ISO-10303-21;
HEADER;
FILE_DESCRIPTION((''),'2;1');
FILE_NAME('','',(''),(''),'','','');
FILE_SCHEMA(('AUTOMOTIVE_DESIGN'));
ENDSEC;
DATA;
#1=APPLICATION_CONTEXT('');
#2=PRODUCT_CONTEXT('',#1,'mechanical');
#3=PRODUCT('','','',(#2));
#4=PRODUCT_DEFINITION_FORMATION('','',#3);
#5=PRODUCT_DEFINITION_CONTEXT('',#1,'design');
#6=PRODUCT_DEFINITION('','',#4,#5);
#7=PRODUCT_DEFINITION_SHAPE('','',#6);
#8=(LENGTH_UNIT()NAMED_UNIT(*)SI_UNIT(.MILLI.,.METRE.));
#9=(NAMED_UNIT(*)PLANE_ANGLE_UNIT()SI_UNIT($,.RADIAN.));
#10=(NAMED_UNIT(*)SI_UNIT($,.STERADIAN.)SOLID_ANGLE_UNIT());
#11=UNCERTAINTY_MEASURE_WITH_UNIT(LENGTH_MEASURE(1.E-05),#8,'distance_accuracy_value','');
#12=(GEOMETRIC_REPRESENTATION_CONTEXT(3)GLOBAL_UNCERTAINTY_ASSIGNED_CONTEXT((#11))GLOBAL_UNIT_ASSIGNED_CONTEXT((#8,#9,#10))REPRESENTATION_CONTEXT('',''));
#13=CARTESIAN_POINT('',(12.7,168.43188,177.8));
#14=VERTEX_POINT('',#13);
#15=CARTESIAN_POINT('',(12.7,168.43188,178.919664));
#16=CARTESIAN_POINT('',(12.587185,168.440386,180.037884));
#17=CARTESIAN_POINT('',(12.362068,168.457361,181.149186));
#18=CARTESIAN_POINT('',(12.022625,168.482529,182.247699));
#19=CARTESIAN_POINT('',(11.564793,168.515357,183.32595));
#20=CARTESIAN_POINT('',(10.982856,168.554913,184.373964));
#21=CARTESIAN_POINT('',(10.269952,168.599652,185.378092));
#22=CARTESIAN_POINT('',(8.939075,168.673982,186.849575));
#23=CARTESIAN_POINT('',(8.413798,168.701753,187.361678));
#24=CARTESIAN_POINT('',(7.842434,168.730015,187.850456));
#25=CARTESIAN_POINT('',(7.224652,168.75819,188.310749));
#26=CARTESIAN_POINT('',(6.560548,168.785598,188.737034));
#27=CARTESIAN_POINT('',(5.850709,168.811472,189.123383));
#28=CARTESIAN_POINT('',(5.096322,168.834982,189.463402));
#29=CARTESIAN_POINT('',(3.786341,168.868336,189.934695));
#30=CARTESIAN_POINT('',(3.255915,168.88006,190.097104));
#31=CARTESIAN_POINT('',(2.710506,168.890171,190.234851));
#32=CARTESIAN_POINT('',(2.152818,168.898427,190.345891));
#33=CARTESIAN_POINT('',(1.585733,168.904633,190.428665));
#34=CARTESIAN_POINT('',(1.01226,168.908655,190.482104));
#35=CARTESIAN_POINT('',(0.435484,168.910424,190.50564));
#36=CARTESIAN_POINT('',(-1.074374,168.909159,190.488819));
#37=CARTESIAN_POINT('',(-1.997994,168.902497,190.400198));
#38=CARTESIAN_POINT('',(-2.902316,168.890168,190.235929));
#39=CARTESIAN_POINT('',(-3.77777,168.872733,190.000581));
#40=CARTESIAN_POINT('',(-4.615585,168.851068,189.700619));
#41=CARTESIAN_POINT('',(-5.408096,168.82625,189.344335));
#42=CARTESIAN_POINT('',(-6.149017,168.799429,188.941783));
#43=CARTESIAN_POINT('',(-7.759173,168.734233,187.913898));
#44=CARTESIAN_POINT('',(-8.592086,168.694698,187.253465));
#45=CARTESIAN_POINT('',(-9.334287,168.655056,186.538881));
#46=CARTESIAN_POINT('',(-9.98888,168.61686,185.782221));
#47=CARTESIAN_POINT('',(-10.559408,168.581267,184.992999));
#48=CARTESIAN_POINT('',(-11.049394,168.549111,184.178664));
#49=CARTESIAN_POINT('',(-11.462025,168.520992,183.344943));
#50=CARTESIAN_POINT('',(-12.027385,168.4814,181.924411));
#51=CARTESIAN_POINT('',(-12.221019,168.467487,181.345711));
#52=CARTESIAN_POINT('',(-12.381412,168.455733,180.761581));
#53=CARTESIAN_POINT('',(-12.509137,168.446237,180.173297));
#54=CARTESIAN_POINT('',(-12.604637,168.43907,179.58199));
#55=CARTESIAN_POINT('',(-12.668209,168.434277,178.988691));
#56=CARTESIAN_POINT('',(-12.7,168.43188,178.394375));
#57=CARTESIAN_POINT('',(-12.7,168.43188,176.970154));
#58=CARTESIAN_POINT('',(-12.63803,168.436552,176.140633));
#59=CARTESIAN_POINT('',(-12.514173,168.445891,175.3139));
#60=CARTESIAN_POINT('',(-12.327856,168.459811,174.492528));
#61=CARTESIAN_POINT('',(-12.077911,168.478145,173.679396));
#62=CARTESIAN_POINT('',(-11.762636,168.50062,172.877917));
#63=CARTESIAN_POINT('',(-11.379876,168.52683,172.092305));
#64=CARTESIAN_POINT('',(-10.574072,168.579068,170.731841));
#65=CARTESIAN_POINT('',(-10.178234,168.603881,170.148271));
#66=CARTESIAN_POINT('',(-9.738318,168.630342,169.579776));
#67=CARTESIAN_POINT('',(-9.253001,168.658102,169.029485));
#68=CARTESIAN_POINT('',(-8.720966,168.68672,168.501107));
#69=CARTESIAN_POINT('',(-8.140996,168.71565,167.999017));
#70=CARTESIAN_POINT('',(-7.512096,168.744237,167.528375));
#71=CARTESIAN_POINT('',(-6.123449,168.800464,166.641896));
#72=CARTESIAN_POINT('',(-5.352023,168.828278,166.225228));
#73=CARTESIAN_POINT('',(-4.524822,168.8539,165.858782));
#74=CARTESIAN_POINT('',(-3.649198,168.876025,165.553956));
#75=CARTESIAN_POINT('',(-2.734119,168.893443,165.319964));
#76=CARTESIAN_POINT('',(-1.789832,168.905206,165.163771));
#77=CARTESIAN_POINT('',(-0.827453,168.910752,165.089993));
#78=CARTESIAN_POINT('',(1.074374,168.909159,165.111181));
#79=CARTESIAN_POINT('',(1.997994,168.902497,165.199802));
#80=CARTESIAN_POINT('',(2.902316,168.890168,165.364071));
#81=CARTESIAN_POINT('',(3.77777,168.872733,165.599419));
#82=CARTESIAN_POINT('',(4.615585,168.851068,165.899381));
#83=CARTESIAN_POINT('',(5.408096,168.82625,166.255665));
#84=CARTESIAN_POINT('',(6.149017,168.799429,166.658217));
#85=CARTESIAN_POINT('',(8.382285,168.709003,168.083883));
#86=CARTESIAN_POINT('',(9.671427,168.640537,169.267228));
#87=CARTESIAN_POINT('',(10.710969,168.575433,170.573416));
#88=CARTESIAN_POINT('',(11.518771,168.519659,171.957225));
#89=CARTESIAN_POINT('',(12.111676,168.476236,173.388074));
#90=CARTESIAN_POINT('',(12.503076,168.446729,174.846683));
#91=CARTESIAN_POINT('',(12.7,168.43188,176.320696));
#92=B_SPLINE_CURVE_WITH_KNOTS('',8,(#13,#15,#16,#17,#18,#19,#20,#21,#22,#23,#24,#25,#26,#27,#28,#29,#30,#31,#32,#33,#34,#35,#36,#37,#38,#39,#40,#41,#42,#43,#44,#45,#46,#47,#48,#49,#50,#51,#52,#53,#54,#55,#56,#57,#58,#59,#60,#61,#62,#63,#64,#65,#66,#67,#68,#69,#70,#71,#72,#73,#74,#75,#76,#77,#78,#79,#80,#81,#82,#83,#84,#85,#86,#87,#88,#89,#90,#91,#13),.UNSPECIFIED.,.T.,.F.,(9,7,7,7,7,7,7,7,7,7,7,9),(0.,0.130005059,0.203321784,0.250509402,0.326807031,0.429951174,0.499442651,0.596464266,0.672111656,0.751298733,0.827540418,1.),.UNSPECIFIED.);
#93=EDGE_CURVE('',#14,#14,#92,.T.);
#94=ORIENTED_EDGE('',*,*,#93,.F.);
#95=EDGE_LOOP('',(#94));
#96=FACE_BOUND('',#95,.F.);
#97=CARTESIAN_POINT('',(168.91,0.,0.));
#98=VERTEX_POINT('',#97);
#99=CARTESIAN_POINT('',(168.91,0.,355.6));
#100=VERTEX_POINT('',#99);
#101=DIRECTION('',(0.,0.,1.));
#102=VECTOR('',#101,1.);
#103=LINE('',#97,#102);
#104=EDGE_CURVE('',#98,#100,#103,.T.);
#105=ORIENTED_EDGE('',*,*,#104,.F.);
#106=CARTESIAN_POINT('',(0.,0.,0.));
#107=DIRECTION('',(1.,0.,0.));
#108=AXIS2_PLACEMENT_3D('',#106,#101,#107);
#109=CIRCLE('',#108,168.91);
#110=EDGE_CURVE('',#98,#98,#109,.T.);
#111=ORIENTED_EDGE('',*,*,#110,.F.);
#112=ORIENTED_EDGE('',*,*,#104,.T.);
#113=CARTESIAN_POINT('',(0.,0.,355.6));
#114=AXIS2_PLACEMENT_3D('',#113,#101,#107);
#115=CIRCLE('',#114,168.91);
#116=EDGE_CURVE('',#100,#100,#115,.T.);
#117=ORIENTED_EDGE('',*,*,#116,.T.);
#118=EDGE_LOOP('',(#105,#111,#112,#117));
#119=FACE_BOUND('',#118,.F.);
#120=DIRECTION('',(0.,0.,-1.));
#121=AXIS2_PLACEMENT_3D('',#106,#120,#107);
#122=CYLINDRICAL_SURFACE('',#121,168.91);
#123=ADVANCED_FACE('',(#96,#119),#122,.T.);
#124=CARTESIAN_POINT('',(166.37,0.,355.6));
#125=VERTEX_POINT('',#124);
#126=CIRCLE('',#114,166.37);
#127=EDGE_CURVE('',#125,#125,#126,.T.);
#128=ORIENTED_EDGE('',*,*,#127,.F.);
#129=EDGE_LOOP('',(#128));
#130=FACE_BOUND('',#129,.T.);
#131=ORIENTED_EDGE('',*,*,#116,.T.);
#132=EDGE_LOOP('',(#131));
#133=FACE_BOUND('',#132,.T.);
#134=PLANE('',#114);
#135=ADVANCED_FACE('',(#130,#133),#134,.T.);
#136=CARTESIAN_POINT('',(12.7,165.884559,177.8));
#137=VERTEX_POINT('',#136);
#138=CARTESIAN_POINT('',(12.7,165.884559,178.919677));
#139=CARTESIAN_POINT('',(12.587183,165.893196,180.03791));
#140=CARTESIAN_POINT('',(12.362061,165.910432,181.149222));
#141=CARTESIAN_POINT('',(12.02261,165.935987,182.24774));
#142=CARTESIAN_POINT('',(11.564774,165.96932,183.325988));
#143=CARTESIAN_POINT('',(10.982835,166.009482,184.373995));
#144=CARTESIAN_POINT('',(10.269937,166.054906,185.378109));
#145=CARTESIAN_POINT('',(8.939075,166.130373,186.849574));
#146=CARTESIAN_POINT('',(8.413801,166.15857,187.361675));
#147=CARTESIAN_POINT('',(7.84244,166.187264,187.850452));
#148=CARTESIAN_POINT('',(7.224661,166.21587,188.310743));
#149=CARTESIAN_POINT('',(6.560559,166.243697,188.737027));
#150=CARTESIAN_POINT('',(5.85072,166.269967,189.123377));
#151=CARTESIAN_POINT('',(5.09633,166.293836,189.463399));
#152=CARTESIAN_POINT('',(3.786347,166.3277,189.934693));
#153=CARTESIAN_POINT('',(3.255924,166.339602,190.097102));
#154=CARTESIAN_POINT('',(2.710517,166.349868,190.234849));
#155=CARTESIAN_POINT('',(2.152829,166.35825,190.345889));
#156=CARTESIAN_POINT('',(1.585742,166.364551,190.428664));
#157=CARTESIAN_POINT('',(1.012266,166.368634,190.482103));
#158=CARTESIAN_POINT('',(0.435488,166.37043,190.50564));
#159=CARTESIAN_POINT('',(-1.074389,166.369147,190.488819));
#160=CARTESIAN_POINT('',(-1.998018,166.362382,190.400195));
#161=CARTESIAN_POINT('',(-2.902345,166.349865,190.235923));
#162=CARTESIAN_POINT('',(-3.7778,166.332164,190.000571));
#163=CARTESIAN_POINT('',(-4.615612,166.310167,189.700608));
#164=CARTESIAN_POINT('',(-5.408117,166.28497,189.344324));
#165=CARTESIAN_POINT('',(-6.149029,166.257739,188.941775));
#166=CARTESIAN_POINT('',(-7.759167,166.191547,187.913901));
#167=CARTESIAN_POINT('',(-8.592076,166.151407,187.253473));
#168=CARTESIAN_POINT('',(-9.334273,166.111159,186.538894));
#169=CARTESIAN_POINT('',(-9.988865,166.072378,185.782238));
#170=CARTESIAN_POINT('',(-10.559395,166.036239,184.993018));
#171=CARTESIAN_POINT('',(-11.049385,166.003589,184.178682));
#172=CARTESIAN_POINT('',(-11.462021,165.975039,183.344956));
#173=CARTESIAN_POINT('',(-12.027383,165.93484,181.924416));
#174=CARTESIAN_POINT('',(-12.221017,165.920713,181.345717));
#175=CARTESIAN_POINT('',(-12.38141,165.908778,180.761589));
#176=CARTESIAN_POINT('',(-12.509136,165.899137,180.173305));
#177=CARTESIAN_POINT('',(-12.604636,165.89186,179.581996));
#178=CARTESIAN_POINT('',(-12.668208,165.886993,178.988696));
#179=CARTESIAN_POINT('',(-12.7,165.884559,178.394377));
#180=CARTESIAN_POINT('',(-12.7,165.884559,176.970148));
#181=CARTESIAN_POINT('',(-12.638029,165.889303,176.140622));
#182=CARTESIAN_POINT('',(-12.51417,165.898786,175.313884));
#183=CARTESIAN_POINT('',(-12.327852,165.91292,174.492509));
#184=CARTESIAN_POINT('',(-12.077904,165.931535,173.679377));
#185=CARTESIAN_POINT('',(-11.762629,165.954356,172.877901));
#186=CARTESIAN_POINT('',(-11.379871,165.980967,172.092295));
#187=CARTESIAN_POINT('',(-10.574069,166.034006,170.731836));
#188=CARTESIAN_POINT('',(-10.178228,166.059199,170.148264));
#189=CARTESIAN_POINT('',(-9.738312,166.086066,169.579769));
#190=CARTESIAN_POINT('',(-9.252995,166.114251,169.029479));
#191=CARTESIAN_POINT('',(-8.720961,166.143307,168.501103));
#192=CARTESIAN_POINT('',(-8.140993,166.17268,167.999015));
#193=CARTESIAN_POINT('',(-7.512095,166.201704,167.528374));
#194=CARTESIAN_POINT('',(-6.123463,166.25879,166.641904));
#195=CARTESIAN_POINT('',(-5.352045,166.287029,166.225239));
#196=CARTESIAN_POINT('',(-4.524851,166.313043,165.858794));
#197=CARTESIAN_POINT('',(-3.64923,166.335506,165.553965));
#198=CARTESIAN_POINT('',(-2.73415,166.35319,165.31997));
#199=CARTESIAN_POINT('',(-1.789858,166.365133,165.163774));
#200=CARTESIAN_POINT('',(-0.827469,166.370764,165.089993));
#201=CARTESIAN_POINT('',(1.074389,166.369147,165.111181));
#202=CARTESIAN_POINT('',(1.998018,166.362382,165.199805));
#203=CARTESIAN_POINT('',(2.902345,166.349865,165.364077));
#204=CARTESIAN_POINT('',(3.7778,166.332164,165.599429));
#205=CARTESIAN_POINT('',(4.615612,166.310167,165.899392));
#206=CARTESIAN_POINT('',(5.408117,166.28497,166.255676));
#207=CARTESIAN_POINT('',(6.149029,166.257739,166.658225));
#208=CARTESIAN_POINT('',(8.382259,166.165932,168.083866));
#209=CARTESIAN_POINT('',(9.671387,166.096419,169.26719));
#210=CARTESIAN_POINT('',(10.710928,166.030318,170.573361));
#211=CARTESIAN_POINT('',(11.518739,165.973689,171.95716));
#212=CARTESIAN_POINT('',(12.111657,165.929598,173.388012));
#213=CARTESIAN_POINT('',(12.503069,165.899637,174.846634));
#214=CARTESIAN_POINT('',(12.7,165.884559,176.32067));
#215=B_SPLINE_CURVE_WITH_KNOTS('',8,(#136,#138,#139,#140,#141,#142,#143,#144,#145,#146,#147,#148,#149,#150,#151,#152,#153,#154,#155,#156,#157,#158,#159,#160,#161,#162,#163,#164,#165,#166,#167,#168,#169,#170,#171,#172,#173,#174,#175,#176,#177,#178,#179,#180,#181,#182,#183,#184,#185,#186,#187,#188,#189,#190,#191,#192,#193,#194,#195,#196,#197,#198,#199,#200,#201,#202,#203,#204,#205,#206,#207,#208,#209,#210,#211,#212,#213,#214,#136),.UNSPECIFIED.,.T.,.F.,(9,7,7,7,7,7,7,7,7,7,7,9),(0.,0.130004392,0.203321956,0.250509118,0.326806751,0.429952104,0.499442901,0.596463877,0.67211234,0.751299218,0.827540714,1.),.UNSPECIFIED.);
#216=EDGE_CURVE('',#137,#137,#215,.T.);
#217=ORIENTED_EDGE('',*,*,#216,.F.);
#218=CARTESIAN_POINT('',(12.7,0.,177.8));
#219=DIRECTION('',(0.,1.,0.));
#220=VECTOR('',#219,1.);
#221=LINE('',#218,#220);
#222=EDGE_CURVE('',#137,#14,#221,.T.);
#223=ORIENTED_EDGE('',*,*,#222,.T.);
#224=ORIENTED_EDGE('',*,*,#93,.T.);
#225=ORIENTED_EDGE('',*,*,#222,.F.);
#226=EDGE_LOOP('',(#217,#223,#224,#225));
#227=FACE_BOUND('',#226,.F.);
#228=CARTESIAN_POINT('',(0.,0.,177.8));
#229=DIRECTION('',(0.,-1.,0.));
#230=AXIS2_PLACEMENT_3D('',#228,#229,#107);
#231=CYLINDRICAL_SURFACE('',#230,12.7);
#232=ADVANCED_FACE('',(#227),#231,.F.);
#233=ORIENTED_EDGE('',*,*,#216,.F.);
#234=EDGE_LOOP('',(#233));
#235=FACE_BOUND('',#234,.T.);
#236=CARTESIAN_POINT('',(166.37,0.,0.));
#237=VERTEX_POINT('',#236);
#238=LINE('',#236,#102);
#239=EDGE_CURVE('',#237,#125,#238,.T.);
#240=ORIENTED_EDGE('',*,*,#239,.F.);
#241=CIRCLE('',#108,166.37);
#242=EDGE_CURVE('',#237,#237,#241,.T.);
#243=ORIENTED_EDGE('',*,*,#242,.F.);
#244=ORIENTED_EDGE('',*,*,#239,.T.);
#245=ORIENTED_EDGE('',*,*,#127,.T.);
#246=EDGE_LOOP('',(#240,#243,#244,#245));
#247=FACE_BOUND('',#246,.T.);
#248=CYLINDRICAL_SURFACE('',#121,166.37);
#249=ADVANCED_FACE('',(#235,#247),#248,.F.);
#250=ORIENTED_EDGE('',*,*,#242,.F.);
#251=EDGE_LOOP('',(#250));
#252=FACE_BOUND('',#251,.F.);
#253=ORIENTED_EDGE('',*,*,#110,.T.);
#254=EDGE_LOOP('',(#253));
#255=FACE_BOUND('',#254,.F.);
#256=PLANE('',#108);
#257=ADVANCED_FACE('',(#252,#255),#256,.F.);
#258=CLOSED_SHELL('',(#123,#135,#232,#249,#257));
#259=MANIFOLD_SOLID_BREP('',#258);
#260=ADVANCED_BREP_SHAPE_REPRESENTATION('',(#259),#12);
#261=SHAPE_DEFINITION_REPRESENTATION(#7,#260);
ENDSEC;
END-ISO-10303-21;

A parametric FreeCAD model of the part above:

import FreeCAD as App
import Part
import Sketcher

V = App.Vector
Q = App.Units.Quantity

doc = App.newDocument("Part")
body = doc.addObject("PartDesign::Body", "Body")

# Sketch on XY plane
sketch1 = doc.addObject("Sketcher::SketchObject", "Sketch")
body.addObject(sketch1)
sketch1.AttachmentSupport = (doc.XY_Plane, [""])
sketch1.MapMode = "FlatFace"
sketch1.addGeometry(Part.Circle(V(0, 0, 0), V(0, 0, 1), 169), False)
sketch1.addGeometry(Part.Circle(V(0, 0, 0), V(0, 0, 1), 166), False)
sketch1.addConstraint(Sketcher.Constraint("Coincident", 0, 3, -1, 1))
sketch1.addConstraint(Sketcher.Constraint("Coincident", 1, 3, -1, 1))
sketch1.addConstraint(Sketcher.Constraint("Diameter", 0, Q("13.3 in")))
sketch1.addConstraint(Sketcher.Constraint("Diameter", 1, Q("13.1 in")))
pad1 = doc.addObject("PartDesign::Pad", "Pad")
body.addObject(pad1)
pad1.Profile = sketch1
pad1.Length = Q("14 in")

# Sketch on XZ plane
sketch2 = doc.addObject("Sketcher::SketchObject", "Sketch001")
body.addObject(sketch2)
sketch2.AttachmentSupport = (doc.XZ_Plane, [""])
sketch2.MapMode = "FlatFace"
sketch2.addGeometry(Part.Circle(V(0, 178, 0), V(0, 0, 1), 13), False)
sketch2.addConstraint(Sketcher.Constraint("PointOnObject", 0, 3, -2))
sketch2.addConstraint(Sketcher.Constraint("Diameter", 0, Q("1 in")))
sketch2.addConstraint(Sketcher.Constraint("DistanceY", -1, 1, 0, 3, Q("7 in")))
pocket1 = doc.addObject("PartDesign::Pocket", "Pocket")
body.addObject(pocket1)
pocket1.Profile = sketch2
pocket1.Type = "ThroughAll"

doc.recompute()
